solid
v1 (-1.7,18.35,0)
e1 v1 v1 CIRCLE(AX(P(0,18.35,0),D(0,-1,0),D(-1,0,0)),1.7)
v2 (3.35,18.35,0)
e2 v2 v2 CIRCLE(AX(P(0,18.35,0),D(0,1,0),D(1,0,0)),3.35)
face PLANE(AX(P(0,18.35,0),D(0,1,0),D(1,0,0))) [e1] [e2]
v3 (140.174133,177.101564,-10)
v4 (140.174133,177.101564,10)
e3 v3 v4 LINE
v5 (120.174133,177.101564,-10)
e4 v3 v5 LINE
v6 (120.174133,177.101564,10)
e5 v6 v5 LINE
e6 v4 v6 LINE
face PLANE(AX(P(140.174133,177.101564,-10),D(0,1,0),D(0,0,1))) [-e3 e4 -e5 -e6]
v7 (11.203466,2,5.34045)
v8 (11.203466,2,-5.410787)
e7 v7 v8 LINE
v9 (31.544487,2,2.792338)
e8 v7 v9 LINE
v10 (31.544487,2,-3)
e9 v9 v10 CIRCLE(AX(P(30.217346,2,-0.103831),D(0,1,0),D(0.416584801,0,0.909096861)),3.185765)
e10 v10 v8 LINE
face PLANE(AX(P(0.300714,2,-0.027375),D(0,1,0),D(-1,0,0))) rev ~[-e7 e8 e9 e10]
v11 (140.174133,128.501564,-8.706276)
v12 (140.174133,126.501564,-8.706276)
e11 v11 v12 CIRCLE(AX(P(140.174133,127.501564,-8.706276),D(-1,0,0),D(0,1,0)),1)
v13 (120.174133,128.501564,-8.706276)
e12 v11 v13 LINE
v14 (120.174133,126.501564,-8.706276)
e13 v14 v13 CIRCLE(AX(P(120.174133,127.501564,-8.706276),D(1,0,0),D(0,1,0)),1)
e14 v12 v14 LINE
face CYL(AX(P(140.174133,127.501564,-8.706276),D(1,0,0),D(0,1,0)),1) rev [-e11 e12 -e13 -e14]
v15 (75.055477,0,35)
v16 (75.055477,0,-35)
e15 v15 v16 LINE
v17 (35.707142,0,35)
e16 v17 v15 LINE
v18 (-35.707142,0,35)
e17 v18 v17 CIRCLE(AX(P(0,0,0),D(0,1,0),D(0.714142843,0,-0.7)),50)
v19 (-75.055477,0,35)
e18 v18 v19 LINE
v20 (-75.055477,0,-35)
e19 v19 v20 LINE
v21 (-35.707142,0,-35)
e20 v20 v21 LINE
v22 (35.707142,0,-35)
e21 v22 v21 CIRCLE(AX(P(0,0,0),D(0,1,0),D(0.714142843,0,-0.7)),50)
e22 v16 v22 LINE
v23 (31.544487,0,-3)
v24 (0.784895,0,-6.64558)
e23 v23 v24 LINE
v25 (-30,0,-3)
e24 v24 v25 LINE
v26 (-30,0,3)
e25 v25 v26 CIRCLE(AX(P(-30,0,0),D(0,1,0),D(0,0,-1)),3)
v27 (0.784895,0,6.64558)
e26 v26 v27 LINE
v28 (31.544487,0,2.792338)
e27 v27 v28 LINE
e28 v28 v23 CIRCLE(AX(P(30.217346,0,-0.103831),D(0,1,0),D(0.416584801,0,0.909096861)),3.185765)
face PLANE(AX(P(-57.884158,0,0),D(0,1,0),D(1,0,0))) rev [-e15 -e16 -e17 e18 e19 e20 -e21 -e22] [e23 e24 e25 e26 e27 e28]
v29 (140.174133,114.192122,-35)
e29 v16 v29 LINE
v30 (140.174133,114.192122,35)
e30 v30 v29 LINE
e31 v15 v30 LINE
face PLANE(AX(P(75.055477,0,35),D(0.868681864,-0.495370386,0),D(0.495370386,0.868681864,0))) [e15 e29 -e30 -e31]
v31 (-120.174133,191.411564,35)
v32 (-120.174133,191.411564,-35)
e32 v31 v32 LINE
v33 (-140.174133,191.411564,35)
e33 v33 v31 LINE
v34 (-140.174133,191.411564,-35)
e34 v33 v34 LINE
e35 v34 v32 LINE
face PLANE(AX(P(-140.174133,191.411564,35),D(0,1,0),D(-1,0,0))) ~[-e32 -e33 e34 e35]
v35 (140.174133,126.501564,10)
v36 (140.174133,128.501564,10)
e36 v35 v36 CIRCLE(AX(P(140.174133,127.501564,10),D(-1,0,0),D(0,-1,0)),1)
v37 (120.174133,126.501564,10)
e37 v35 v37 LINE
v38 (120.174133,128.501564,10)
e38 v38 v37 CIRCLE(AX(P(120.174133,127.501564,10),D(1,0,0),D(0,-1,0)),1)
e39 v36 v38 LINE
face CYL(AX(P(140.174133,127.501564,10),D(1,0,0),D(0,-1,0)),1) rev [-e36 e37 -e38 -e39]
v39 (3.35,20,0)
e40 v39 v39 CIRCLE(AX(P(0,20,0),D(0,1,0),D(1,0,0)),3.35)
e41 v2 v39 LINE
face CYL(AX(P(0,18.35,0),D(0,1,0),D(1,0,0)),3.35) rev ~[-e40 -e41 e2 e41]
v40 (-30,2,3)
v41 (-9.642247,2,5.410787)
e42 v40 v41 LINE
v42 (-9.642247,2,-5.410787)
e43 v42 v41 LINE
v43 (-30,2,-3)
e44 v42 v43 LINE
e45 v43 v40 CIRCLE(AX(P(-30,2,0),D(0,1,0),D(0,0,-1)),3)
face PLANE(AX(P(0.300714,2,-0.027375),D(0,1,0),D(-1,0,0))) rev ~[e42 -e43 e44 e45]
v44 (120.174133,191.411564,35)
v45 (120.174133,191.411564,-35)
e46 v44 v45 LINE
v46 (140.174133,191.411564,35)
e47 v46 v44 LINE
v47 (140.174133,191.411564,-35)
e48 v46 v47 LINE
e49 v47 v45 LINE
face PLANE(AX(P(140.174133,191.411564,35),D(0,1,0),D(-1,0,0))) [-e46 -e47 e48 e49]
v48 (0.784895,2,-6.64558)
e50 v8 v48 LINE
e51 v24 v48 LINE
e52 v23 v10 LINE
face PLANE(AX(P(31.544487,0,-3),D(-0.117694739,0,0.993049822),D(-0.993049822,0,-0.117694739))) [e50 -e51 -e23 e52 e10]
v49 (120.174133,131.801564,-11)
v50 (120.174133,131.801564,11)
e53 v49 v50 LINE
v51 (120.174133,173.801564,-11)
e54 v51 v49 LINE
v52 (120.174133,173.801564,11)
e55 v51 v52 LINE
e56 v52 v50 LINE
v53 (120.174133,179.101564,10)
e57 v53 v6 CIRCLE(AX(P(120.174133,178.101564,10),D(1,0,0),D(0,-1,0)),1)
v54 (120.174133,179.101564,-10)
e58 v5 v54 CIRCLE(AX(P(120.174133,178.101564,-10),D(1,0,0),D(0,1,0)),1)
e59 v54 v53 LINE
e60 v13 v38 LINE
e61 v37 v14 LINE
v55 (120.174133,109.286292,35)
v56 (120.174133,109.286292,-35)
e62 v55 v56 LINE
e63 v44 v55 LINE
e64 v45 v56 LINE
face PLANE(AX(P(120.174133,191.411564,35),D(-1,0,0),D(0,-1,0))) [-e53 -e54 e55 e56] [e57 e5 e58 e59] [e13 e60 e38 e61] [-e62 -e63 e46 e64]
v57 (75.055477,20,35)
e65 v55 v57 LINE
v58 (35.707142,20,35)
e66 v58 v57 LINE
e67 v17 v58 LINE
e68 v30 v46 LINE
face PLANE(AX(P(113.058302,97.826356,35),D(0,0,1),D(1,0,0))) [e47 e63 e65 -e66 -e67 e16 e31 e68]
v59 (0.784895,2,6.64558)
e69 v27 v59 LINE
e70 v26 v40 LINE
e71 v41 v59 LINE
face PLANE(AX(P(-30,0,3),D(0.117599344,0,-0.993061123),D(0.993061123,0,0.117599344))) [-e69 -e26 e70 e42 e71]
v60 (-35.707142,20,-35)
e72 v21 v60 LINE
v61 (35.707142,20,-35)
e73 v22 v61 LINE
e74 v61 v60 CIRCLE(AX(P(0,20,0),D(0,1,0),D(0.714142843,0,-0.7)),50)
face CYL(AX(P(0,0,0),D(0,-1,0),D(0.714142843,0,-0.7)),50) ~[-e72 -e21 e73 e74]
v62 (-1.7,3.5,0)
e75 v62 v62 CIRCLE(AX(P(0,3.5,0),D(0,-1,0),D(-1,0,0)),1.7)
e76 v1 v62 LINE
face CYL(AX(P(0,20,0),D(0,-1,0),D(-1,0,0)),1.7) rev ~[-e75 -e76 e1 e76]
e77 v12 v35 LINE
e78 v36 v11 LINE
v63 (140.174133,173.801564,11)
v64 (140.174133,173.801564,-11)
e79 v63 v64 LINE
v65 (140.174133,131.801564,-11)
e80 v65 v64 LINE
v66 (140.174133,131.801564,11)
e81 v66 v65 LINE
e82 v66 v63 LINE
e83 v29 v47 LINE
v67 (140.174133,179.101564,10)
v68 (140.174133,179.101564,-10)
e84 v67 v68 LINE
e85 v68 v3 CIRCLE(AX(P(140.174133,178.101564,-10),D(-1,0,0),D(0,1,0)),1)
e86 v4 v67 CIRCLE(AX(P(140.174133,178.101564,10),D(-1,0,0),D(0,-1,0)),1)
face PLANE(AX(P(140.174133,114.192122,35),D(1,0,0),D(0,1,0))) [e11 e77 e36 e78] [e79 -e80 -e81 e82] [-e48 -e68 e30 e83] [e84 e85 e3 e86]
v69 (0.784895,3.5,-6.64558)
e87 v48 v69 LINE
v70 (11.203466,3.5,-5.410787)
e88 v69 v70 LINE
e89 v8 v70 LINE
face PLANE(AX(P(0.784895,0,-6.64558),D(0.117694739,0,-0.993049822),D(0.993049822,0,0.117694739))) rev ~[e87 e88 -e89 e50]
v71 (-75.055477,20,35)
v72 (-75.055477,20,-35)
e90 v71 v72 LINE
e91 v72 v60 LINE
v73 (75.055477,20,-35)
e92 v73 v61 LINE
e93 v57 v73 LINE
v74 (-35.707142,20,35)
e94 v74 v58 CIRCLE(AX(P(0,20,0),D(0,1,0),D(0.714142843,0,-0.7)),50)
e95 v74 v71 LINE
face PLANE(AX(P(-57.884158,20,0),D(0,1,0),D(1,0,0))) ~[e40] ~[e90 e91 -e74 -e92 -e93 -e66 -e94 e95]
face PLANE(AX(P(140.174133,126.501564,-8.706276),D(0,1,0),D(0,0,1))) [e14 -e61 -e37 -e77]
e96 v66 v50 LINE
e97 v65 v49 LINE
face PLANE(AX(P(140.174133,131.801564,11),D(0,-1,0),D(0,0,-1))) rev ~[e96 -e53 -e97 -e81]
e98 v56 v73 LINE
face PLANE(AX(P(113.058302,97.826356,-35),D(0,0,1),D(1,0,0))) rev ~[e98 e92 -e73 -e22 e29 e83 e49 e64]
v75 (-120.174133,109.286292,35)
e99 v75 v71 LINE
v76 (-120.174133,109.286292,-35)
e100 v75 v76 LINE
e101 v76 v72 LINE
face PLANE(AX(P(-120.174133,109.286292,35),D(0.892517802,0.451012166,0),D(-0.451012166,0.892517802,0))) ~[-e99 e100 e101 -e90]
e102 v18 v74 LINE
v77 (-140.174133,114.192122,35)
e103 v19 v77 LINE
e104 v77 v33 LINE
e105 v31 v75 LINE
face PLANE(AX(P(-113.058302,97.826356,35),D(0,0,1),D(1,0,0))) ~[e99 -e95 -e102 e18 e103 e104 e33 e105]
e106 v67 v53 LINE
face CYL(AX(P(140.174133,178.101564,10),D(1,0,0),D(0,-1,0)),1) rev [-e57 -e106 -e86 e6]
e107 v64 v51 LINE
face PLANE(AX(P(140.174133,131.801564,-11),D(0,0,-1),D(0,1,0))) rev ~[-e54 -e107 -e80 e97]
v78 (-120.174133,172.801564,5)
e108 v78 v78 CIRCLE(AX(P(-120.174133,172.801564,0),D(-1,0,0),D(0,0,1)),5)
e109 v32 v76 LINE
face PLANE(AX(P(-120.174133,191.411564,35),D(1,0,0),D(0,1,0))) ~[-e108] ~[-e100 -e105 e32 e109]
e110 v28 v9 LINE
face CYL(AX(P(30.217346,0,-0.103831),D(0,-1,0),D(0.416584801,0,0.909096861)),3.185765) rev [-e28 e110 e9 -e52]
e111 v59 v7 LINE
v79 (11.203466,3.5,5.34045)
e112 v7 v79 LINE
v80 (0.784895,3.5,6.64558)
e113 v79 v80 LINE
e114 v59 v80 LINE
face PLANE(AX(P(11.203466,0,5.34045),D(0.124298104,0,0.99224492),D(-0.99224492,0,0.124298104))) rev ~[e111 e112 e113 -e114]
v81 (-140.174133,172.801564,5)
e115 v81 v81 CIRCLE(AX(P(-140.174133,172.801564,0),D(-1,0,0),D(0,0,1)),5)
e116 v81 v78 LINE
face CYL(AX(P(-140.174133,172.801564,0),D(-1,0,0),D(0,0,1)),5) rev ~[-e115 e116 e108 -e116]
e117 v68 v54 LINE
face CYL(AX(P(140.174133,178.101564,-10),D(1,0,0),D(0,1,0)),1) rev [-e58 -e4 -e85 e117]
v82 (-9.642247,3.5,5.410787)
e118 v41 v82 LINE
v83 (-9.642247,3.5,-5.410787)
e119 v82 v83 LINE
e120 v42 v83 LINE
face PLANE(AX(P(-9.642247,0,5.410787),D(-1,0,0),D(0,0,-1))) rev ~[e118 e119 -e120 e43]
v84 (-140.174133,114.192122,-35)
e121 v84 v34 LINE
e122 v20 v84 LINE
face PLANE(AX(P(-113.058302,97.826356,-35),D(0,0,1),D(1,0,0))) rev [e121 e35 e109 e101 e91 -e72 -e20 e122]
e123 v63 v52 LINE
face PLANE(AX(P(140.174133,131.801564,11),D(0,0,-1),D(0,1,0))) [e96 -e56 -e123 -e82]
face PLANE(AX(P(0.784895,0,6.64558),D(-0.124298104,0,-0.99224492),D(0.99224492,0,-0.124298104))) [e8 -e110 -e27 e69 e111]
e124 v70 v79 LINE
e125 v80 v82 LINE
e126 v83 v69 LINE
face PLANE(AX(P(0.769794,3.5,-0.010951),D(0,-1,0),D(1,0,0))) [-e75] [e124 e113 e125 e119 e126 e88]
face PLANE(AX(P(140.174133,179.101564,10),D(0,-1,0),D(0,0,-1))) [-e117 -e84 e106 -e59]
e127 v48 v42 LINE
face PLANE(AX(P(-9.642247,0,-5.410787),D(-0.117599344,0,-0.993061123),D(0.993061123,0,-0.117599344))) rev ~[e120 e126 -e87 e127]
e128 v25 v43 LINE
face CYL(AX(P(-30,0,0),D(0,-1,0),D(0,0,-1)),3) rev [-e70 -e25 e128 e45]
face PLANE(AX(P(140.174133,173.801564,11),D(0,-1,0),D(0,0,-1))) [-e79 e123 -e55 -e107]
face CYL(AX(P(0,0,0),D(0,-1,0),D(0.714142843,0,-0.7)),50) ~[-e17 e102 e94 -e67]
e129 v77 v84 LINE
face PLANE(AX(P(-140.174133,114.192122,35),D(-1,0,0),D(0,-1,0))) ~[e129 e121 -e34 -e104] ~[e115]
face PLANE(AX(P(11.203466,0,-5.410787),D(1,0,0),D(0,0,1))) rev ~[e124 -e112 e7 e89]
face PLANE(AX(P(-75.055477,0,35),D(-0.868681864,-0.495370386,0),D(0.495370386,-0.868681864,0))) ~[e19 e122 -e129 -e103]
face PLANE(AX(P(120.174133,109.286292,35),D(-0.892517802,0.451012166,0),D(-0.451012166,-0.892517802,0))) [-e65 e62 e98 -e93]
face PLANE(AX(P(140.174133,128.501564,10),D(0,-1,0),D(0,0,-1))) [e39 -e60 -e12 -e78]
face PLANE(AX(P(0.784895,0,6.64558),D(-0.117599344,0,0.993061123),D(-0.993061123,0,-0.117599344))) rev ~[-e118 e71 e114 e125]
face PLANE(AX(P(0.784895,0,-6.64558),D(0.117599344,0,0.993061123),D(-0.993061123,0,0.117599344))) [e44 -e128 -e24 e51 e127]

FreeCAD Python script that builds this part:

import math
import FreeCAD as App
import Part
import Sketcher
Q = App.Units.Quantity


def add_polygon(sketch, points):
    """Adds a closed chain of lines whose ends are joined by coincident constraints."""
    first, n = sketch.GeometryCount, len(points)
    for a, b in zip(points, points[1:] + points[:1]):
        sketch.addGeometry(Part.LineSegment(App.Vector(*a, 0), App.Vector(*b, 0)), False)
    for i in range(n):
        sketch.addConstraint(Sketcher.Constraint("Coincident", first + i, 2, first + (i + 1) % n, 1))

doc = App.newDocument("Part")
body = doc.addObject("PartDesign::Body", "Body")

sketch1 = doc.addObject("Sketcher::SketchObject", "Sketch")
body.addObject(sketch1)
sketch1.AttachmentSupport = (doc.XZ_Plane, [""])
sketch1.MapMode = "FlatFace"
sketch1.addGeometry(Part.LineSegment(App.Vector(36, 35, 0), App.Vector(75, 35, 0)), False)
sketch1.addGeometry(Part.LineSegment(App.Vector(75, 35, 0), App.Vector(75, -35, 0)), False)
sketch1.addGeometry(Part.LineSegment(App.Vector(75, -35, 0), App.Vector(36, -35, 0)), False)
sketch1.addGeometry(Part.ArcOfCircle(Part.Circle(App.Vector(0, 0, 0), App.Vector(0, 0, 1), 50), math.radians(44), math.radians(316)), False)
sketch1.addConstraint(Sketcher.Constraint("Coincident", 0, 2, 1, 1))
sketch1.addConstraint(Sketcher.Constraint("Coincident", 1, 2, 2, 1))
sketch1.addConstraint(Sketcher.Constraint("Coincident", 2, 2, 3, 2))
sketch1.addConstraint(Sketcher.Constraint("Coincident", 3, 1, 0, 1))
sketch1.addConstraint(Sketcher.Constraint("Horizontal", 0))
sketch1.addConstraint(Sketcher.Constraint("Vertical", 1))
sketch1.addConstraint(Sketcher.Constraint("Horizontal", 2))
sketch1.addConstraint(Sketcher.Constraint("Coincident", 3, 3, -1, 1))
sketch1.addConstraint(Sketcher.Constraint("Vertical", 2, 2, 3, 1))
sketch1.addConstraint(Sketcher.Constraint("Radius", 3, Q("50 mm")))
sketch1.addConstraint(Sketcher.Constraint("DistanceY", 1, 2, 1, 1, Q("70 mm")))
sketch1.addConstraint(Sketcher.Constraint("DistanceX", 0, 1, 0, 2, Q("39.348335 mm")))
pad1 = doc.addObject("PartDesign::Pad", "Pad")
body.addObject(pad1)
pad1.Profile = sketch1
pad1.Length = 20
pad1.Reversed = True

sketch2 = doc.addObject("Sketcher::SketchObject", "Sketch001")
body.addObject(sketch2)
sketch2.AttachmentSupport = (doc.XY_Plane, [""])
sketch2.MapMode = "FlatFace"
sketch2.AttachmentOffset = App.Placement(App.Vector(0, 0, 35), App.Rotation())
add_polygon(sketch2, [(75, 0), (140, 114), (140, 191), (120, 191), (120, 109), (75, 20)])
sketch2.addConstraint(Sketcher.Constraint("Vertical", 1))
sketch2.addConstraint(Sketcher.Constraint("Horizontal", 2))
sketch2.addConstraint(Sketcher.Constraint("Vertical", 3))
sketch2.addConstraint(Sketcher.Constraint("Vertical", 5))
sketch2.addConstraint(Sketcher.Constraint("PointOnObject", 5, 2, -1))
sketch2.addConstraint(Sketcher.Constraint("Equal", 2, 5))
sketch2.addConstraint(Sketcher.Constraint("DistanceX", 2, 2, 2, 1, Q("20 mm")))
sketch2.addConstraint(Sketcher.Constraint("DistanceY", 1, 1, 1, 2, Q("77.219442 mm")))
sketch2.addConstraint(Sketcher.Constraint("DistanceY", 3, 2, 3, 1, Q("82.125272 mm")))
sketch2.addConstraint(Sketcher.Constraint("Distance", 0, Q("131.45448 mm")))
sketch2.addConstraint(Sketcher.Constraint("Distance", 4, Q("100.038668 mm")))
sketch2.addConstraint(Sketcher.Constraint("DistanceX", -1, 1, 0, 2, Q("140.174133 mm")))
pad2 = doc.addObject("PartDesign::Pad", "Pad001")
body.addObject(pad2)
pad2.Profile = sketch2
pad2.Length = 70
pad2.Reversed = True
doc.recompute()

mirrored = doc.addObject("PartDesign::Mirrored", "Mirrored")
body.addObject(mirrored)
mirrored.Originals = [pad1, pad2]
mirrored.MirrorPlane = (doc.YZ_Plane, [""])
body.Tip = mirrored

sketch3 = doc.addObject("Sketcher::SketchObject", "Sketch002")
body.addObject(sketch3)
sketch3.AttachmentSupport = (doc.XZ_Plane, [""])
sketch3.MapMode = "FlatFace"
sketch3.AttachmentOffset = App.Placement(App.Vector(0, 0, -20), App.Rotation())
sketch3.addGeometry(Part.Circle(App.Vector(0, 0, 0), App.Vector(0, 0, 1), 1.7), False)
sketch3.addConstraint(Sketcher.Constraint("Coincident", 0, 3, -1, 1))
sketch3.addConstraint(Sketcher.Constraint("Diameter", 0, Q("3.4 mm")))
doc.recompute()
hole = doc.addObject("PartDesign::Hole", "Hole")
body.addObject(hole)
hole.Profile = sketch3
hole.ThreadType = "None"
hole.Diameter = 3.4
hole.DepthType = "ThroughAll"
hole.HoleCutType = "Counterbore"
hole.HoleCutDiameter = 6.7
hole.HoleCutDepth = 1.65
hole.Reversed = True

sketch4 = doc.addObject("Sketcher::SketchObject", "Sketch003")
body.addObject(sketch4)
sketch4.AttachmentSupport = (doc.YZ_Plane, [""])
sketch4.MapMode = "FlatFace"
sketch4.AttachmentOffset = App.Placement(App.Vector(0, 0, 140.174133), App.Rotation())
add_polygon(sketch4, [(174, 11), (132, 11), (132, -11), (174, -11)])
sketch4.addConstraint(Sketcher.Constraint("Horizontal", 0))
sketch4.addConstraint(Sketcher.Constraint("Vertical", 1))
sketch4.addConstraint(Sketcher.Constraint("Horizontal", 2))
sketch4.addConstraint(Sketcher.Constraint("Vertical", 3))
sketch4.addConstraint(Sketcher.Constraint("DistanceX", 0, 2, 0, 1, Q("42 mm")))
sketch4.addConstraint(Sketcher.Constraint("DistanceY", 1, 2, 1, 1, Q("22 mm")))
sketch4.addConstraint(Sketcher.Constraint("DistanceY", -1, 1, 0, 2, Q("11 mm")))
sketch4.addConstraint(Sketcher.Constraint("DistanceX", -1, 1, 0, 2, Q("131.801564 mm")))
pocket1 = doc.addObject("PartDesign::Pocket", "Pocket")
body.addObject(pocket1)
pocket1.Profile = sketch4
pocket1.Length = 32

sketch5 = doc.addObject("Sketcher::SketchObject", "Sketch004")
body.addObject(sketch5)
sketch5.AttachmentSupport = (doc.YZ_Plane, [""])
sketch5.MapMode = "FlatFace"
sketch5.AttachmentOffset = App.Placement(App.Vector(0, 0, 140.174133), App.Rotation())
sketch5.addGeometry(Part.LineSegment(App.Vector(179.1, -10, 0), App.Vector(179.1, 10, 0)), False)
sketch5.addGeometry(Part.ArcOfCircle(Part.Circle(App.Vector(178.1, 10, 0), App.Vector(0, 0, 1), 1), math.radians(0), math.radians(180)), False)
sketch5.addGeometry(Part.LineSegment(App.Vector(177.1, 10, 0), App.Vector(177.1, -10, 0)), False)
sketch5.addGeometry(Part.ArcOfCircle(Part.Circle(App.Vector(178.1, -10, 0), App.Vector(0, 0, 1), 1), math.radians(180), math.radians(360)), False)
sketch5.addGeometry(Part.LineSegment(App.Vector(128.5, -8.7, 0), App.Vector(128.5, 10, 0)), False)
sketch5.addGeometry(Part.ArcOfCircle(Part.Circle(App.Vector(127.5, 10, 0), App.Vector(0, 0, 1), 1), math.radians(0), math.radians(180)), False)
sketch5.addGeometry(Part.LineSegment(App.Vector(126.5, 10, 0), App.Vector(126.5, -8.7, 0)), False)
sketch5.addGeometry(Part.ArcOfCircle(Part.Circle(App.Vector(127.5, -8.7, 0), App.Vector(0, 0, 1), 1), math.radians(180), math.radians(360)), False)
sketch5.addConstraint(Sketcher.Constraint("Tangent", 0, 2, 1, 1))
sketch5.addConstraint(Sketcher.Constraint("Tangent", 1, 2, 2, 1))
sketch5.addConstraint(Sketcher.Constraint("Tangent", 2, 2, 3, 1))
sketch5.addConstraint(Sketcher.Constraint("Tangent", 3, 2, 0, 1))
sketch5.addConstraint(Sketcher.Constraint("Tangent", 4, 2, 5, 1))
sketch5.addConstraint(Sketcher.Constraint("Tangent", 5, 2, 6, 1))
sketch5.addConstraint(Sketcher.Constraint("Tangent", 6, 2, 7, 1))
sketch5.addConstraint(Sketcher.Constraint("Tangent", 7, 2, 4, 1))
sketch5.addConstraint(Sketcher.Constraint("Vertical", 0))
sketch5.addConstraint(Sketcher.Constraint("Vertical", 2))
sketch5.addConstraint(Sketcher.Constraint("Vertical", 4))
sketch5.addConstraint(Sketcher.Constraint("Vertical", 6))
sketch5.addConstraint(Sketcher.Constraint("Equal", 3, 5))
sketch5.addConstraint(Sketcher.Constraint("Horizontal", 1, 3, 5, 3))
sketch5.addConstraint(Sketcher.Constraint("Radius", 1, Q("1 mm")))
sketch5.addConstraint(Sketcher.Constraint("DistanceY", 0, 1, 0, 2, Q("20 mm")))
sketch5.addConstraint(Sketcher.Constraint("DistanceY", -1, 1, 1, 3, Q("10 mm")))
sketch5.addConstraint(Sketcher.Constraint("DistanceX", 5, 3, 1, 3, Q("50.6 mm")))
sketch5.addConstraint(Sketcher.Constraint("DistanceY", 4, 1, 4, 2, Q("18.706276 mm")))
sketch5.addConstraint(Sketcher.Constraint("DistanceX", -1, 1, 1, 3, Q("178.101564 mm")))
pocket2 = doc.addObject("PartDesign::Pocket", "Pocket001")
body.addObject(pocket2)
pocket2.Profile = sketch5
pocket2.Length = 67

sketch6 = doc.addObject("Sketcher::SketchObject", "Sketch005")
body.addObject(sketch6)
sketch6.AttachmentSupport = (doc.YZ_Plane, [""])
sketch6.MapMode = "FlatFace"
sketch6.AttachmentOffset = App.Placement(App.Vector(0, 0, -140.174133), App.Rotation())
sketch6.addGeometry(Part.Circle(App.Vector(173, 0, 0), App.Vector(0, 0, 1), 5), False)
sketch6.addConstraint(Sketcher.Constraint("PointOnObject", 0, 3, -1))
sketch6.addConstraint(Sketcher.Constraint("Diameter", 0, Q("10 mm")))
sketch6.addConstraint(Sketcher.Constraint("DistanceX", -1, 1, 0, 3, Q("172.801564 mm")))
pocket3 = doc.addObject("PartDesign::Pocket", "Pocket002")
body.addObject(pocket3)
pocket3.Profile = sketch6
pocket3.Length = 70
pocket3.Reversed = True

sketch7 = doc.addObject("Sketcher::SketchObject", "Sketch006")
body.addObject(sketch7)
sketch7.AttachmentSupport = (doc.XZ_Plane, [""])
sketch7.MapMode = "FlatFace"
sketch7.addGeometry(Part.LineSegment(App.Vector(0.8, 6.6, 0), App.Vector(-30, 3, 0)), False)
sketch7.addGeometry(Part.ArcOfCircle(Part.Circle(App.Vector(-30, 0, 0), App.Vector(0, 0, 1), 3), math.radians(90), math.radians(270)), False)
sketch7.addGeometry(Part.LineSegment(App.Vector(-30, -3, 0), App.Vector(0.8, -6.6, 0)), False)
sketch7.addGeometry(Part.LineSegment(App.Vector(0.8, -6.6, 0), App.Vector(31.5, -3, 0)), False)
sketch7.addGeometry(Part.ArcOfCircle(Part.Circle(App.Vector(30.2, -0.1, 0), App.Vector(0, 0, 1), 3.2), math.radians(-65), math.radians(65)), False)
sketch7.addGeometry(Part.LineSegment(App.Vector(31.5, 2.8, 0), App.Vector(0.8, 6.6, 0)), False)
sketch7.addConstraint(Sketcher.Constraint("Coincident", 0, 2, 1, 1))
sketch7.addConstraint(Sketcher.Constraint("Coincident", 1, 2, 2, 1))
sketch7.addConstraint(Sketcher.Constraint("Coincident", 2, 2, 3, 1))
sketch7.addConstraint(Sketcher.Constraint("Coincident", 3, 2, 4, 1))
sketch7.addConstraint(Sketcher.Constraint("Coincident", 4, 2, 5, 1))
sketch7.addConstraint(Sketcher.Constraint("Coincident", 5, 2, 0, 1))
sketch7.addConstraint(Sketcher.Constraint("Symmetric", 0, 2, 1, 2, -1))
sketch7.addConstraint(Sketcher.Constraint("Symmetric", 2, 2, 5, 2, -1))
sketch7.addConstraint(Sketcher.Constraint("Horizontal", 1, 2, 3, 2))
sketch7.addConstraint(Sketcher.Constraint("Vertical", 1, 3, 0, 2))
sketch7.addConstraint(Sketcher.Constraint("Vertical", 3, 2, 4, 2))
sketch7.addConstraint(Sketcher.Constraint("Equal", 2, 5))
sketch7.addConstraint(Sketcher.Constraint("Radius", 1, Q("3 mm")))
sketch7.addConstraint(Sketcher.Constraint("Distance", 0, Q("31 mm")))
sketch7.addConstraint(Sketcher.Constraint("DistanceX", 1, 3, -1, 1, Q("30 mm")))
sketch7.addConstraint(Sketcher.Constraint("Radius", 4, Q("3.185765 mm")))
sketch7.addConstraint(Sketcher.Constraint("DistanceY", 4, 3, -1, 1, Q("0.103831 mm")))
sketch7.addConstraint(Sketcher.Constraint("DistanceY", 2, 2, -1, 1, Q("6.64558 mm")))
pocket4 = doc.addObject("PartDesign::Pocket", "Pocket003")
body.addObject(pocket4)
pocket4.Profile = sketch7
pocket4.Length = 2

sketch8 = doc.addObject("Sketcher::SketchObject", "Sketch007")
body.addObject(sketch8)
sketch8.AttachmentSupport = (doc.XZ_Plane, [""])
sketch8.MapMode = "FlatFace"
add_polygon(sketch8, [(0.784895, 6.64558), (-9.642247, 5.410787), (-9.642247, -5.410787), (0.784895, -6.64558), (11.203466, -5.410787), (11.203466, 5.34045)])
sketch8.addConstraint(Sketcher.Constraint("Vertical", 1))
sketch8.addConstraint(Sketcher.Constraint("Vertical", 4))
sketch8.addConstraint(Sketcher.Constraint("Distance", 0, Q("10.5 mm")))
sketch8.addConstraint(Sketcher.Constraint("Distance", 2, Q("10.5 mm")))
sketch8.addConstraint(Sketcher.Constraint("Distance", 5, Q("10.5 mm")))
sketch8.addConstraint(Sketcher.Constraint("Distance", 3, Q("10.491489 mm")))
sketch8.addConstraint(Sketcher.Constraint("DistanceY", 1, 2, 1, 1, Q("10.821573 mm")))
sketch8.addConstraint(Sketcher.Constraint("DistanceY", 4, 1, 4, 2, Q("10.751236 mm")))
sketch8.addConstraint(Sketcher.Constraint("DistanceY", 2, 2, -1, 1, Q("6.64558 mm")))
sketch8.addConstraint(Sketcher.Constraint("DistanceY", -1, 1, 4, 2, Q("5.34045 mm")))
sketch8.addConstraint(Sketcher.Constraint("DistanceY", -1, 1, 5, 2, Q("6.64558 mm")))
sketch8.addConstraint(Sketcher.Constraint("DistanceX", 0, 2, -1, 1, Q("9.642247 mm")))
pocket5 = doc.addObject("PartDesign::Pocket", "Pocket004")
body.addObject(pocket5)
pocket5.Profile = sketch8
pocket5.Length = 3.5

doc.recompute()
